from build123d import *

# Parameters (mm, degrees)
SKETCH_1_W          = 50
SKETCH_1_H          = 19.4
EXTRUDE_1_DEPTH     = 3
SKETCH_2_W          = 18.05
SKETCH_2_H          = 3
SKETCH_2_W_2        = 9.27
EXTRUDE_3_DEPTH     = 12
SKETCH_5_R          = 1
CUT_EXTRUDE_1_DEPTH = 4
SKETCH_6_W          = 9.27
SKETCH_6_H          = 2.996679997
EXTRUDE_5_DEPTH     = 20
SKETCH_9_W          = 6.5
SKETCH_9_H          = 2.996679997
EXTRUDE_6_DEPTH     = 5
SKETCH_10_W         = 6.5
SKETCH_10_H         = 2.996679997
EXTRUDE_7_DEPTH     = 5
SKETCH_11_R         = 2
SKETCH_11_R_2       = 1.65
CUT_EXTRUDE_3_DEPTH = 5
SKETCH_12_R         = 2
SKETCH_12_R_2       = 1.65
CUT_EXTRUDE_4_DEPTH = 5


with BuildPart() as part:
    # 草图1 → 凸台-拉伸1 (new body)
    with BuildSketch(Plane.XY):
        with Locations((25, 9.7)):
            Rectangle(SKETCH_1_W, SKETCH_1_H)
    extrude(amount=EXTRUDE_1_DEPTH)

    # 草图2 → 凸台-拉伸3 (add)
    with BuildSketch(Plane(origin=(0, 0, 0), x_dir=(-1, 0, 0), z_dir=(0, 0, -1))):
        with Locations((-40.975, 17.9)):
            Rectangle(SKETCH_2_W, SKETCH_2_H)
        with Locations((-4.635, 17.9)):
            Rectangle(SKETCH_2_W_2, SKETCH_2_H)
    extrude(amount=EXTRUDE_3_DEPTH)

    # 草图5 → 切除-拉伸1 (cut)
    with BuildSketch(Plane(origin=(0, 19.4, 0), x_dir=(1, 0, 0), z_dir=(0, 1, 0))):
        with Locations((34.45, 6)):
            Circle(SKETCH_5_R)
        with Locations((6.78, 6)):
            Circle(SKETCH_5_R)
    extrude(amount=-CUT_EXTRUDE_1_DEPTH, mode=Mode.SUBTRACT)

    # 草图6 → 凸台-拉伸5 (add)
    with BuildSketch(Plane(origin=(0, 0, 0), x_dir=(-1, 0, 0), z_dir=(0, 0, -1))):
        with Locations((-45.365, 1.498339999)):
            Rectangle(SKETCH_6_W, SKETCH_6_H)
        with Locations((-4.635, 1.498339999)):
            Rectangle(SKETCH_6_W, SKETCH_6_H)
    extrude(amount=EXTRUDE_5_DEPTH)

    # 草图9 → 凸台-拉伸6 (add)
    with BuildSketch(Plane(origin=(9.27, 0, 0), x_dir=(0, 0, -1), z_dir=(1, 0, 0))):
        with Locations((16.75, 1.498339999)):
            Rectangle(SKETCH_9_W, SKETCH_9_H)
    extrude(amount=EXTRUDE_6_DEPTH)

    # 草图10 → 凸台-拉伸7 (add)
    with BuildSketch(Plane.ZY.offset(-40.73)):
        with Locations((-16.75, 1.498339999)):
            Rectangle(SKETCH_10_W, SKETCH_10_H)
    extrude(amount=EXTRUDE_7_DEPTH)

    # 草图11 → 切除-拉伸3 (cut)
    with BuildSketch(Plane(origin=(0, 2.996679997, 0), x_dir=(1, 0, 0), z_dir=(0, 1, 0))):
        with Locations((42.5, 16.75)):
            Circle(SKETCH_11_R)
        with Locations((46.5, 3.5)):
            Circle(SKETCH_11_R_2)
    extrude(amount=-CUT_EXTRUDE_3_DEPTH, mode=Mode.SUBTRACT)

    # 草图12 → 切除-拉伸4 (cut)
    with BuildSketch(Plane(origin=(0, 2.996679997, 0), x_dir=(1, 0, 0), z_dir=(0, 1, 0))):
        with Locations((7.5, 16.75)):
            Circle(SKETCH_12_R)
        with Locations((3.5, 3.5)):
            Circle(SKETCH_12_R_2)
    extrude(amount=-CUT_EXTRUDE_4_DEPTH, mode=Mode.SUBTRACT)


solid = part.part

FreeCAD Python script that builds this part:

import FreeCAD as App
import Part
import Sketcher
from FreeCAD import Vector


def add_polygon(sketch, points):
    """Adds a closed chain of lines whose ends are joined by coincident constraints."""
    first, n = sketch.GeometryCount, len(points)
    for a, b in zip(points, points[1:] + points[:1]):
        sketch.addGeometry(Part.LineSegment(App.Vector(*a, 0), App.Vector(*b, 0)), False)
    for i in range(n):
        sketch.addConstraint(Sketcher.Constraint("Coincident", first + i, 2, first + (i + 1) % n, 1))

doc = App.newDocument("Part")
body = doc.addObject("PartDesign::Body", "Body")

# Sketch on XY plane
sketch1 = body.newObject("Sketcher::SketchObject", "Sketch")
sketch1.AttachmentSupport = (doc.getObject("XY_Plane"), [""])
sketch1.MapMode = "FlatFace"
add_polygon(sketch1, [(0, 19), (0, 0), (50, 0), (50, 19)])  # lines 0-3
sketch1.addConstraint(Sketcher.Constraint("Vertical", 0))
sketch1.addConstraint(Sketcher.Constraint("Horizontal", 1))
sketch1.addConstraint(Sketcher.Constraint("Vertical", 2))
sketch1.addConstraint(Sketcher.Constraint("Horizontal", 3))
sketch1.addConstraint(Sketcher.Constraint("Coincident", 0, 2, -1, 1))
sketch1.addConstraint(Sketcher.Constraint("DistanceX", 1, 1, 1, 2, 50.0))
sketch1.addConstraint(Sketcher.Constraint("DistanceY", 0, 2, 0, 1, 19.4))
pad1 = body.newObject("PartDesign::Pad", "Pad")
pad1.Profile = sketch1
pad1.Length = 3

# Sketch on XY plane
sketch2 = body.newObject("Sketcher::SketchObject", "Sketch001")
sketch2.AttachmentSupport = (doc.getObject("XY_Plane"), [""])
sketch2.MapMode = "FlatFace"
add_polygon(sketch2, [(50, 19.4), (50, 16.4), (31.9, 16.4), (31.9, 19.4)])  # lines 0-3
add_polygon(sketch2, [(9.3, 19.4), (9.3, 16.4), (0, 16.4), (0, 19.4)])  # lines 4-7
sketch2.addConstraint(Sketcher.Constraint("Vertical", 0))
sketch2.addConstraint(Sketcher.Constraint("Horizontal", 1))
sketch2.addConstraint(Sketcher.Constraint("Vertical", 2))
sketch2.addConstraint(Sketcher.Constraint("Horizontal", 3))
sketch2.addConstraint(Sketcher.Constraint("Vertical", 4))
sketch2.addConstraint(Sketcher.Constraint("Horizontal", 5))
sketch2.addConstraint(Sketcher.Constraint("Vertical", 6))
sketch2.addConstraint(Sketcher.Constraint("Horizontal", 7))
sketch2.addConstraint(Sketcher.Constraint("PointOnObject", 5, 2, -2))
sketch2.addConstraint(Sketcher.Constraint("Horizontal", 1, 2, 4, 2))
sketch2.addConstraint(Sketcher.Constraint("Horizontal", 3, 2, 6, 2))
sketch2.addConstraint(Sketcher.Constraint("DistanceY", 0, 2, 0, 1, 3.0))
sketch2.addConstraint(Sketcher.Constraint("DistanceX", -1, 1, 0, 2, 50.0))
sketch2.addConstraint(Sketcher.Constraint("DistanceX", 1, 2, 1, 1, 18.05))
sketch2.addConstraint(Sketcher.Constraint("DistanceX", 5, 2, 5, 1, 9.27))
sketch2.addConstraint(Sketcher.Constraint("DistanceY", -1, 1, 0, 2, 16.4))
pad2 = body.newObject("PartDesign::Pad", "Pad001")
pad2.Profile = sketch2
pad2.Length = 12
pad2.Reversed = True

# Sketch on XZ plane
sketch3 = body.newObject("Sketcher::SketchObject", "Sketch002")
sketch3.AttachmentSupport = (doc.getObject("XZ_Plane"), [""])
sketch3.MapMode = "FlatFace"
sketch3.AttachmentOffset = App.Placement(Vector(0, 0, -19.4), App.Rotation())
sketch3.addGeometry(Part.Circle(Vector(34.5, -6, 0), Vector(0, 0, 1), 1), False)
sketch3.addGeometry(Part.Circle(Vector(6.8, -6, 0), Vector(0, 0, 1), 1), False)
sketch3.addConstraint(Sketcher.Constraint("Equal", 0, 1))
sketch3.addConstraint(Sketcher.Constraint("Horizontal", 0, 3, 1, 3))
sketch3.addConstraint(Sketcher.Constraint("Diameter", 0, 2.0))
sketch3.addConstraint(Sketcher.Constraint("DistanceY", 0, 3, -1, 1, 6.0))
sketch3.addConstraint(Sketcher.Constraint("DistanceX", -1, 1, 0, 3, 34.45))
sketch3.addConstraint(Sketcher.Constraint("DistanceX", -1, 1, 1, 3, 6.78))
pocket1 = body.newObject("PartDesign::Pocket", "Pocket")
pocket1.Profile = sketch3
pocket1.Length = 4
pocket1.Reversed = True

# Sketch on XY plane
sketch4 = body.newObject("Sketcher::SketchObject", "Sketch003")
sketch4.AttachmentSupport = (doc.getObject("XY_Plane"), [""])
sketch4.MapMode = "FlatFace"
add_polygon(sketch4, [(50, 3), (50, 0), (40.7, 0), (40.7, 3)])  # lines 0-3
add_polygon(sketch4, [(9.3, 3), (9.3, 0), (0, 0), (0, 3)])  # lines 4-7
sketch4.addConstraint(Sketcher.Constraint("Vertical", 0))
sketch4.addConstraint(Sketcher.Constraint("Horizontal", 1))
sketch4.addConstraint(Sketcher.Constraint("Vertical", 2))
sketch4.addConstraint(Sketcher.Constraint("Horizontal", 3))
sketch4.addConstraint(Sketcher.Constraint("Vertical", 4))
sketch4.addConstraint(Sketcher.Constraint("Horizontal", 5))
sketch4.addConstraint(Sketcher.Constraint("Vertical", 6))
sketch4.addConstraint(Sketcher.Constraint("Horizontal", 7))
sketch4.addConstraint(Sketcher.Constraint("Coincident", 5, 2, -1, 1))
sketch4.addConstraint(Sketcher.Constraint("PointOnObject", 0, 2, -1))
sketch4.addConstraint(Sketcher.Constraint("Horizontal", 3, 2, 6, 2))
sketch4.addConstraint(Sketcher.Constraint("Equal", 3, 5))
sketch4.addConstraint(Sketcher.Constraint("DistanceX", -1, 1, 0, 2, 50.0))
sketch4.addConstraint(Sketcher.Constraint("DistanceX", 1, 2, 1, 1, 9.27))
sketch4.addConstraint(Sketcher.Constraint("DistanceY", 0, 2, 0, 1, 2.99668))
pad3 = body.newObject("PartDesign::Pad", "Pad002")
pad3.Profile = sketch4
pad3.Length = 20
pad3.Reversed = True

# Sketch on YZ plane
sketch5 = body.newObject("Sketcher::SketchObject", "Sketch004")
sketch5.AttachmentSupport = (doc.getObject("YZ_Plane"), [""])
sketch5.MapMode = "FlatFace"
sketch5.AttachmentOffset = App.Placement(Vector(0, 0, 9.27), App.Rotation())
add_polygon(sketch5, [(3, -13.5), (0, -13.5), (0, -20), (3, -20)])  # lines 0-3
sketch5.addConstraint(Sketcher.Constraint("Horizontal", 0))
sketch5.addConstraint(Sketcher.Constraint("Vertical", 1))
sketch5.addConstraint(Sketcher.Constraint("Horizontal", 2))
sketch5.addConstraint(Sketcher.Constraint("Vertical", 3))
sketch5.addConstraint(Sketcher.Constraint("PointOnObject", 0, 2, -2))
sketch5.addConstraint(Sketcher.Constraint("DistanceY", 1, 2, 1, 1, 6.5))
sketch5.addConstraint(Sketcher.Constraint("DistanceY", 1, 2, -1, 1, 20.0))
sketch5.addConstraint(Sketcher.Constraint("DistanceX", 0, 2, 0, 1, 2.99668))
pad4 = body.newObject("PartDesign::Pad", "Pad003")
pad4.Profile = sketch5
pad4.Length = 5

# Sketch on YZ plane
sketch6 = body.newObject("Sketcher::SketchObject", "Sketch005")
sketch6.AttachmentSupport = (doc.getObject("YZ_Plane"), [""])
sketch6.MapMode = "FlatFace"
sketch6.AttachmentOffset = App.Placement(Vector(0, 0, 40.73), App.Rotation())
add_polygon(sketch6, [(3, -20), (0, -20), (0, -13.5), (3, -13.5)])  # lines 0-3
sketch6.addConstraint(Sketcher.Constraint("Horizontal", 0))
sketch6.addConstraint(Sketcher.Constraint("Vertical", 1))
sketch6.addConstraint(Sketcher.Constraint("Horizontal", 2))
sketch6.addConstraint(Sketcher.Constraint("Vertical", 3))
sketch6.addConstraint(Sketcher.Constraint("PointOnObject", 0, 2, -2))
sketch6.addConstraint(Sketcher.Constraint("DistanceY", 1, 1, 1, 2, 6.5))
sketch6.addConstraint(Sketcher.Constraint("DistanceY", 0, 2, -1, 1, 20.0))
sketch6.addConstraint(Sketcher.Constraint("DistanceX", 0, 2, 0, 1, 2.99668))
pad5 = body.newObject("PartDesign::Pad", "Pad004")
pad5.Profile = sketch6
pad5.Length = 5
pad5.Reversed = True

# Sketch on XZ plane
sketch7 = body.newObject("Sketcher::SketchObject", "Sketch006")
sketch7.AttachmentSupport = (doc.getObject("XZ_Plane"), [""])
sketch7.MapMode = "FlatFace"
sketch7.AttachmentOffset = App.Placement(Vector(0, 0, -2.99668), App.Rotation())
sketch7.addGeometry(Part.Circle(Vector(42.5, -16.8, 0), Vector(0, 0, 1), 2), False)
sketch7.addGeometry(Part.Circle(Vector(46.5, -3.5, 0), Vector(0, 0, 1), 1.6), False)
sketch7.addConstraint(Sketcher.Constraint("Diameter", 0, 4.0))
sketch7.addConstraint(Sketcher.Constraint("Diameter", 1, 3.3))
sketch7.addConstraint(Sketcher.Constraint("DistanceX", 0, 3, 1, 3, 4.0))
sketch7.addConstraint(Sketcher.Constraint("DistanceX", -1, 1, 0, 3, 42.5))
sketch7.addConstraint(Sketcher.Constraint("DistanceY", 1, 3, -1, 1, 3.5))
sketch7.addConstraint(Sketcher.Constraint("DistanceY", 0, 3, -1, 1, 16.75))
pocket2 = body.newObject("PartDesign::Pocket", "Pocket001")
pocket2.Profile = sketch7
pocket2.Length = 5
pocket2.Reversed = True

# Sketch on XZ plane
sketch8 = body.newObject("Sketcher::SketchObject", "Sketch007")
sketch8.AttachmentSupport = (doc.getObject("XZ_Plane"), [""])
sketch8.MapMode = "FlatFace"
sketch8.AttachmentOffset = App.Placement(Vector(0, 0, -2.99668), App.Rotation())
sketch8.addGeometry(Part.Circle(Vector(7.5, -16.8, 0), Vector(0, 0, 1), 2), False)
sketch8.addGeometry(Part.Circle(Vector(3.5, -3.5, 0), Vector(0, 0, 1), 1.6), False)
sketch8.addConstraint(Sketcher.Constraint("Diameter", 0, 4.0))
sketch8.addConstraint(Sketcher.Constraint("Diameter", 1, 3.3))
sketch8.addConstraint(Sketcher.Constraint("DistanceX", 1, 3, 0, 3, 4.0))
sketch8.addConstraint(Sketcher.Constraint("DistanceX", -1, 1, 0, 3, 7.5))
sketch8.addConstraint(Sketcher.Constraint("DistanceY", 1, 3, -1, 1, 3.5))
sketch8.addConstraint(Sketcher.Constraint("DistanceY", 0, 3, -1, 1, 16.75))
pocket3 = body.newObject("PartDesign::Pocket", "Pocket002")
pocket3.Profile = sketch8
pocket3.Length = 5
pocket3.Reversed = True

doc.recompute()
